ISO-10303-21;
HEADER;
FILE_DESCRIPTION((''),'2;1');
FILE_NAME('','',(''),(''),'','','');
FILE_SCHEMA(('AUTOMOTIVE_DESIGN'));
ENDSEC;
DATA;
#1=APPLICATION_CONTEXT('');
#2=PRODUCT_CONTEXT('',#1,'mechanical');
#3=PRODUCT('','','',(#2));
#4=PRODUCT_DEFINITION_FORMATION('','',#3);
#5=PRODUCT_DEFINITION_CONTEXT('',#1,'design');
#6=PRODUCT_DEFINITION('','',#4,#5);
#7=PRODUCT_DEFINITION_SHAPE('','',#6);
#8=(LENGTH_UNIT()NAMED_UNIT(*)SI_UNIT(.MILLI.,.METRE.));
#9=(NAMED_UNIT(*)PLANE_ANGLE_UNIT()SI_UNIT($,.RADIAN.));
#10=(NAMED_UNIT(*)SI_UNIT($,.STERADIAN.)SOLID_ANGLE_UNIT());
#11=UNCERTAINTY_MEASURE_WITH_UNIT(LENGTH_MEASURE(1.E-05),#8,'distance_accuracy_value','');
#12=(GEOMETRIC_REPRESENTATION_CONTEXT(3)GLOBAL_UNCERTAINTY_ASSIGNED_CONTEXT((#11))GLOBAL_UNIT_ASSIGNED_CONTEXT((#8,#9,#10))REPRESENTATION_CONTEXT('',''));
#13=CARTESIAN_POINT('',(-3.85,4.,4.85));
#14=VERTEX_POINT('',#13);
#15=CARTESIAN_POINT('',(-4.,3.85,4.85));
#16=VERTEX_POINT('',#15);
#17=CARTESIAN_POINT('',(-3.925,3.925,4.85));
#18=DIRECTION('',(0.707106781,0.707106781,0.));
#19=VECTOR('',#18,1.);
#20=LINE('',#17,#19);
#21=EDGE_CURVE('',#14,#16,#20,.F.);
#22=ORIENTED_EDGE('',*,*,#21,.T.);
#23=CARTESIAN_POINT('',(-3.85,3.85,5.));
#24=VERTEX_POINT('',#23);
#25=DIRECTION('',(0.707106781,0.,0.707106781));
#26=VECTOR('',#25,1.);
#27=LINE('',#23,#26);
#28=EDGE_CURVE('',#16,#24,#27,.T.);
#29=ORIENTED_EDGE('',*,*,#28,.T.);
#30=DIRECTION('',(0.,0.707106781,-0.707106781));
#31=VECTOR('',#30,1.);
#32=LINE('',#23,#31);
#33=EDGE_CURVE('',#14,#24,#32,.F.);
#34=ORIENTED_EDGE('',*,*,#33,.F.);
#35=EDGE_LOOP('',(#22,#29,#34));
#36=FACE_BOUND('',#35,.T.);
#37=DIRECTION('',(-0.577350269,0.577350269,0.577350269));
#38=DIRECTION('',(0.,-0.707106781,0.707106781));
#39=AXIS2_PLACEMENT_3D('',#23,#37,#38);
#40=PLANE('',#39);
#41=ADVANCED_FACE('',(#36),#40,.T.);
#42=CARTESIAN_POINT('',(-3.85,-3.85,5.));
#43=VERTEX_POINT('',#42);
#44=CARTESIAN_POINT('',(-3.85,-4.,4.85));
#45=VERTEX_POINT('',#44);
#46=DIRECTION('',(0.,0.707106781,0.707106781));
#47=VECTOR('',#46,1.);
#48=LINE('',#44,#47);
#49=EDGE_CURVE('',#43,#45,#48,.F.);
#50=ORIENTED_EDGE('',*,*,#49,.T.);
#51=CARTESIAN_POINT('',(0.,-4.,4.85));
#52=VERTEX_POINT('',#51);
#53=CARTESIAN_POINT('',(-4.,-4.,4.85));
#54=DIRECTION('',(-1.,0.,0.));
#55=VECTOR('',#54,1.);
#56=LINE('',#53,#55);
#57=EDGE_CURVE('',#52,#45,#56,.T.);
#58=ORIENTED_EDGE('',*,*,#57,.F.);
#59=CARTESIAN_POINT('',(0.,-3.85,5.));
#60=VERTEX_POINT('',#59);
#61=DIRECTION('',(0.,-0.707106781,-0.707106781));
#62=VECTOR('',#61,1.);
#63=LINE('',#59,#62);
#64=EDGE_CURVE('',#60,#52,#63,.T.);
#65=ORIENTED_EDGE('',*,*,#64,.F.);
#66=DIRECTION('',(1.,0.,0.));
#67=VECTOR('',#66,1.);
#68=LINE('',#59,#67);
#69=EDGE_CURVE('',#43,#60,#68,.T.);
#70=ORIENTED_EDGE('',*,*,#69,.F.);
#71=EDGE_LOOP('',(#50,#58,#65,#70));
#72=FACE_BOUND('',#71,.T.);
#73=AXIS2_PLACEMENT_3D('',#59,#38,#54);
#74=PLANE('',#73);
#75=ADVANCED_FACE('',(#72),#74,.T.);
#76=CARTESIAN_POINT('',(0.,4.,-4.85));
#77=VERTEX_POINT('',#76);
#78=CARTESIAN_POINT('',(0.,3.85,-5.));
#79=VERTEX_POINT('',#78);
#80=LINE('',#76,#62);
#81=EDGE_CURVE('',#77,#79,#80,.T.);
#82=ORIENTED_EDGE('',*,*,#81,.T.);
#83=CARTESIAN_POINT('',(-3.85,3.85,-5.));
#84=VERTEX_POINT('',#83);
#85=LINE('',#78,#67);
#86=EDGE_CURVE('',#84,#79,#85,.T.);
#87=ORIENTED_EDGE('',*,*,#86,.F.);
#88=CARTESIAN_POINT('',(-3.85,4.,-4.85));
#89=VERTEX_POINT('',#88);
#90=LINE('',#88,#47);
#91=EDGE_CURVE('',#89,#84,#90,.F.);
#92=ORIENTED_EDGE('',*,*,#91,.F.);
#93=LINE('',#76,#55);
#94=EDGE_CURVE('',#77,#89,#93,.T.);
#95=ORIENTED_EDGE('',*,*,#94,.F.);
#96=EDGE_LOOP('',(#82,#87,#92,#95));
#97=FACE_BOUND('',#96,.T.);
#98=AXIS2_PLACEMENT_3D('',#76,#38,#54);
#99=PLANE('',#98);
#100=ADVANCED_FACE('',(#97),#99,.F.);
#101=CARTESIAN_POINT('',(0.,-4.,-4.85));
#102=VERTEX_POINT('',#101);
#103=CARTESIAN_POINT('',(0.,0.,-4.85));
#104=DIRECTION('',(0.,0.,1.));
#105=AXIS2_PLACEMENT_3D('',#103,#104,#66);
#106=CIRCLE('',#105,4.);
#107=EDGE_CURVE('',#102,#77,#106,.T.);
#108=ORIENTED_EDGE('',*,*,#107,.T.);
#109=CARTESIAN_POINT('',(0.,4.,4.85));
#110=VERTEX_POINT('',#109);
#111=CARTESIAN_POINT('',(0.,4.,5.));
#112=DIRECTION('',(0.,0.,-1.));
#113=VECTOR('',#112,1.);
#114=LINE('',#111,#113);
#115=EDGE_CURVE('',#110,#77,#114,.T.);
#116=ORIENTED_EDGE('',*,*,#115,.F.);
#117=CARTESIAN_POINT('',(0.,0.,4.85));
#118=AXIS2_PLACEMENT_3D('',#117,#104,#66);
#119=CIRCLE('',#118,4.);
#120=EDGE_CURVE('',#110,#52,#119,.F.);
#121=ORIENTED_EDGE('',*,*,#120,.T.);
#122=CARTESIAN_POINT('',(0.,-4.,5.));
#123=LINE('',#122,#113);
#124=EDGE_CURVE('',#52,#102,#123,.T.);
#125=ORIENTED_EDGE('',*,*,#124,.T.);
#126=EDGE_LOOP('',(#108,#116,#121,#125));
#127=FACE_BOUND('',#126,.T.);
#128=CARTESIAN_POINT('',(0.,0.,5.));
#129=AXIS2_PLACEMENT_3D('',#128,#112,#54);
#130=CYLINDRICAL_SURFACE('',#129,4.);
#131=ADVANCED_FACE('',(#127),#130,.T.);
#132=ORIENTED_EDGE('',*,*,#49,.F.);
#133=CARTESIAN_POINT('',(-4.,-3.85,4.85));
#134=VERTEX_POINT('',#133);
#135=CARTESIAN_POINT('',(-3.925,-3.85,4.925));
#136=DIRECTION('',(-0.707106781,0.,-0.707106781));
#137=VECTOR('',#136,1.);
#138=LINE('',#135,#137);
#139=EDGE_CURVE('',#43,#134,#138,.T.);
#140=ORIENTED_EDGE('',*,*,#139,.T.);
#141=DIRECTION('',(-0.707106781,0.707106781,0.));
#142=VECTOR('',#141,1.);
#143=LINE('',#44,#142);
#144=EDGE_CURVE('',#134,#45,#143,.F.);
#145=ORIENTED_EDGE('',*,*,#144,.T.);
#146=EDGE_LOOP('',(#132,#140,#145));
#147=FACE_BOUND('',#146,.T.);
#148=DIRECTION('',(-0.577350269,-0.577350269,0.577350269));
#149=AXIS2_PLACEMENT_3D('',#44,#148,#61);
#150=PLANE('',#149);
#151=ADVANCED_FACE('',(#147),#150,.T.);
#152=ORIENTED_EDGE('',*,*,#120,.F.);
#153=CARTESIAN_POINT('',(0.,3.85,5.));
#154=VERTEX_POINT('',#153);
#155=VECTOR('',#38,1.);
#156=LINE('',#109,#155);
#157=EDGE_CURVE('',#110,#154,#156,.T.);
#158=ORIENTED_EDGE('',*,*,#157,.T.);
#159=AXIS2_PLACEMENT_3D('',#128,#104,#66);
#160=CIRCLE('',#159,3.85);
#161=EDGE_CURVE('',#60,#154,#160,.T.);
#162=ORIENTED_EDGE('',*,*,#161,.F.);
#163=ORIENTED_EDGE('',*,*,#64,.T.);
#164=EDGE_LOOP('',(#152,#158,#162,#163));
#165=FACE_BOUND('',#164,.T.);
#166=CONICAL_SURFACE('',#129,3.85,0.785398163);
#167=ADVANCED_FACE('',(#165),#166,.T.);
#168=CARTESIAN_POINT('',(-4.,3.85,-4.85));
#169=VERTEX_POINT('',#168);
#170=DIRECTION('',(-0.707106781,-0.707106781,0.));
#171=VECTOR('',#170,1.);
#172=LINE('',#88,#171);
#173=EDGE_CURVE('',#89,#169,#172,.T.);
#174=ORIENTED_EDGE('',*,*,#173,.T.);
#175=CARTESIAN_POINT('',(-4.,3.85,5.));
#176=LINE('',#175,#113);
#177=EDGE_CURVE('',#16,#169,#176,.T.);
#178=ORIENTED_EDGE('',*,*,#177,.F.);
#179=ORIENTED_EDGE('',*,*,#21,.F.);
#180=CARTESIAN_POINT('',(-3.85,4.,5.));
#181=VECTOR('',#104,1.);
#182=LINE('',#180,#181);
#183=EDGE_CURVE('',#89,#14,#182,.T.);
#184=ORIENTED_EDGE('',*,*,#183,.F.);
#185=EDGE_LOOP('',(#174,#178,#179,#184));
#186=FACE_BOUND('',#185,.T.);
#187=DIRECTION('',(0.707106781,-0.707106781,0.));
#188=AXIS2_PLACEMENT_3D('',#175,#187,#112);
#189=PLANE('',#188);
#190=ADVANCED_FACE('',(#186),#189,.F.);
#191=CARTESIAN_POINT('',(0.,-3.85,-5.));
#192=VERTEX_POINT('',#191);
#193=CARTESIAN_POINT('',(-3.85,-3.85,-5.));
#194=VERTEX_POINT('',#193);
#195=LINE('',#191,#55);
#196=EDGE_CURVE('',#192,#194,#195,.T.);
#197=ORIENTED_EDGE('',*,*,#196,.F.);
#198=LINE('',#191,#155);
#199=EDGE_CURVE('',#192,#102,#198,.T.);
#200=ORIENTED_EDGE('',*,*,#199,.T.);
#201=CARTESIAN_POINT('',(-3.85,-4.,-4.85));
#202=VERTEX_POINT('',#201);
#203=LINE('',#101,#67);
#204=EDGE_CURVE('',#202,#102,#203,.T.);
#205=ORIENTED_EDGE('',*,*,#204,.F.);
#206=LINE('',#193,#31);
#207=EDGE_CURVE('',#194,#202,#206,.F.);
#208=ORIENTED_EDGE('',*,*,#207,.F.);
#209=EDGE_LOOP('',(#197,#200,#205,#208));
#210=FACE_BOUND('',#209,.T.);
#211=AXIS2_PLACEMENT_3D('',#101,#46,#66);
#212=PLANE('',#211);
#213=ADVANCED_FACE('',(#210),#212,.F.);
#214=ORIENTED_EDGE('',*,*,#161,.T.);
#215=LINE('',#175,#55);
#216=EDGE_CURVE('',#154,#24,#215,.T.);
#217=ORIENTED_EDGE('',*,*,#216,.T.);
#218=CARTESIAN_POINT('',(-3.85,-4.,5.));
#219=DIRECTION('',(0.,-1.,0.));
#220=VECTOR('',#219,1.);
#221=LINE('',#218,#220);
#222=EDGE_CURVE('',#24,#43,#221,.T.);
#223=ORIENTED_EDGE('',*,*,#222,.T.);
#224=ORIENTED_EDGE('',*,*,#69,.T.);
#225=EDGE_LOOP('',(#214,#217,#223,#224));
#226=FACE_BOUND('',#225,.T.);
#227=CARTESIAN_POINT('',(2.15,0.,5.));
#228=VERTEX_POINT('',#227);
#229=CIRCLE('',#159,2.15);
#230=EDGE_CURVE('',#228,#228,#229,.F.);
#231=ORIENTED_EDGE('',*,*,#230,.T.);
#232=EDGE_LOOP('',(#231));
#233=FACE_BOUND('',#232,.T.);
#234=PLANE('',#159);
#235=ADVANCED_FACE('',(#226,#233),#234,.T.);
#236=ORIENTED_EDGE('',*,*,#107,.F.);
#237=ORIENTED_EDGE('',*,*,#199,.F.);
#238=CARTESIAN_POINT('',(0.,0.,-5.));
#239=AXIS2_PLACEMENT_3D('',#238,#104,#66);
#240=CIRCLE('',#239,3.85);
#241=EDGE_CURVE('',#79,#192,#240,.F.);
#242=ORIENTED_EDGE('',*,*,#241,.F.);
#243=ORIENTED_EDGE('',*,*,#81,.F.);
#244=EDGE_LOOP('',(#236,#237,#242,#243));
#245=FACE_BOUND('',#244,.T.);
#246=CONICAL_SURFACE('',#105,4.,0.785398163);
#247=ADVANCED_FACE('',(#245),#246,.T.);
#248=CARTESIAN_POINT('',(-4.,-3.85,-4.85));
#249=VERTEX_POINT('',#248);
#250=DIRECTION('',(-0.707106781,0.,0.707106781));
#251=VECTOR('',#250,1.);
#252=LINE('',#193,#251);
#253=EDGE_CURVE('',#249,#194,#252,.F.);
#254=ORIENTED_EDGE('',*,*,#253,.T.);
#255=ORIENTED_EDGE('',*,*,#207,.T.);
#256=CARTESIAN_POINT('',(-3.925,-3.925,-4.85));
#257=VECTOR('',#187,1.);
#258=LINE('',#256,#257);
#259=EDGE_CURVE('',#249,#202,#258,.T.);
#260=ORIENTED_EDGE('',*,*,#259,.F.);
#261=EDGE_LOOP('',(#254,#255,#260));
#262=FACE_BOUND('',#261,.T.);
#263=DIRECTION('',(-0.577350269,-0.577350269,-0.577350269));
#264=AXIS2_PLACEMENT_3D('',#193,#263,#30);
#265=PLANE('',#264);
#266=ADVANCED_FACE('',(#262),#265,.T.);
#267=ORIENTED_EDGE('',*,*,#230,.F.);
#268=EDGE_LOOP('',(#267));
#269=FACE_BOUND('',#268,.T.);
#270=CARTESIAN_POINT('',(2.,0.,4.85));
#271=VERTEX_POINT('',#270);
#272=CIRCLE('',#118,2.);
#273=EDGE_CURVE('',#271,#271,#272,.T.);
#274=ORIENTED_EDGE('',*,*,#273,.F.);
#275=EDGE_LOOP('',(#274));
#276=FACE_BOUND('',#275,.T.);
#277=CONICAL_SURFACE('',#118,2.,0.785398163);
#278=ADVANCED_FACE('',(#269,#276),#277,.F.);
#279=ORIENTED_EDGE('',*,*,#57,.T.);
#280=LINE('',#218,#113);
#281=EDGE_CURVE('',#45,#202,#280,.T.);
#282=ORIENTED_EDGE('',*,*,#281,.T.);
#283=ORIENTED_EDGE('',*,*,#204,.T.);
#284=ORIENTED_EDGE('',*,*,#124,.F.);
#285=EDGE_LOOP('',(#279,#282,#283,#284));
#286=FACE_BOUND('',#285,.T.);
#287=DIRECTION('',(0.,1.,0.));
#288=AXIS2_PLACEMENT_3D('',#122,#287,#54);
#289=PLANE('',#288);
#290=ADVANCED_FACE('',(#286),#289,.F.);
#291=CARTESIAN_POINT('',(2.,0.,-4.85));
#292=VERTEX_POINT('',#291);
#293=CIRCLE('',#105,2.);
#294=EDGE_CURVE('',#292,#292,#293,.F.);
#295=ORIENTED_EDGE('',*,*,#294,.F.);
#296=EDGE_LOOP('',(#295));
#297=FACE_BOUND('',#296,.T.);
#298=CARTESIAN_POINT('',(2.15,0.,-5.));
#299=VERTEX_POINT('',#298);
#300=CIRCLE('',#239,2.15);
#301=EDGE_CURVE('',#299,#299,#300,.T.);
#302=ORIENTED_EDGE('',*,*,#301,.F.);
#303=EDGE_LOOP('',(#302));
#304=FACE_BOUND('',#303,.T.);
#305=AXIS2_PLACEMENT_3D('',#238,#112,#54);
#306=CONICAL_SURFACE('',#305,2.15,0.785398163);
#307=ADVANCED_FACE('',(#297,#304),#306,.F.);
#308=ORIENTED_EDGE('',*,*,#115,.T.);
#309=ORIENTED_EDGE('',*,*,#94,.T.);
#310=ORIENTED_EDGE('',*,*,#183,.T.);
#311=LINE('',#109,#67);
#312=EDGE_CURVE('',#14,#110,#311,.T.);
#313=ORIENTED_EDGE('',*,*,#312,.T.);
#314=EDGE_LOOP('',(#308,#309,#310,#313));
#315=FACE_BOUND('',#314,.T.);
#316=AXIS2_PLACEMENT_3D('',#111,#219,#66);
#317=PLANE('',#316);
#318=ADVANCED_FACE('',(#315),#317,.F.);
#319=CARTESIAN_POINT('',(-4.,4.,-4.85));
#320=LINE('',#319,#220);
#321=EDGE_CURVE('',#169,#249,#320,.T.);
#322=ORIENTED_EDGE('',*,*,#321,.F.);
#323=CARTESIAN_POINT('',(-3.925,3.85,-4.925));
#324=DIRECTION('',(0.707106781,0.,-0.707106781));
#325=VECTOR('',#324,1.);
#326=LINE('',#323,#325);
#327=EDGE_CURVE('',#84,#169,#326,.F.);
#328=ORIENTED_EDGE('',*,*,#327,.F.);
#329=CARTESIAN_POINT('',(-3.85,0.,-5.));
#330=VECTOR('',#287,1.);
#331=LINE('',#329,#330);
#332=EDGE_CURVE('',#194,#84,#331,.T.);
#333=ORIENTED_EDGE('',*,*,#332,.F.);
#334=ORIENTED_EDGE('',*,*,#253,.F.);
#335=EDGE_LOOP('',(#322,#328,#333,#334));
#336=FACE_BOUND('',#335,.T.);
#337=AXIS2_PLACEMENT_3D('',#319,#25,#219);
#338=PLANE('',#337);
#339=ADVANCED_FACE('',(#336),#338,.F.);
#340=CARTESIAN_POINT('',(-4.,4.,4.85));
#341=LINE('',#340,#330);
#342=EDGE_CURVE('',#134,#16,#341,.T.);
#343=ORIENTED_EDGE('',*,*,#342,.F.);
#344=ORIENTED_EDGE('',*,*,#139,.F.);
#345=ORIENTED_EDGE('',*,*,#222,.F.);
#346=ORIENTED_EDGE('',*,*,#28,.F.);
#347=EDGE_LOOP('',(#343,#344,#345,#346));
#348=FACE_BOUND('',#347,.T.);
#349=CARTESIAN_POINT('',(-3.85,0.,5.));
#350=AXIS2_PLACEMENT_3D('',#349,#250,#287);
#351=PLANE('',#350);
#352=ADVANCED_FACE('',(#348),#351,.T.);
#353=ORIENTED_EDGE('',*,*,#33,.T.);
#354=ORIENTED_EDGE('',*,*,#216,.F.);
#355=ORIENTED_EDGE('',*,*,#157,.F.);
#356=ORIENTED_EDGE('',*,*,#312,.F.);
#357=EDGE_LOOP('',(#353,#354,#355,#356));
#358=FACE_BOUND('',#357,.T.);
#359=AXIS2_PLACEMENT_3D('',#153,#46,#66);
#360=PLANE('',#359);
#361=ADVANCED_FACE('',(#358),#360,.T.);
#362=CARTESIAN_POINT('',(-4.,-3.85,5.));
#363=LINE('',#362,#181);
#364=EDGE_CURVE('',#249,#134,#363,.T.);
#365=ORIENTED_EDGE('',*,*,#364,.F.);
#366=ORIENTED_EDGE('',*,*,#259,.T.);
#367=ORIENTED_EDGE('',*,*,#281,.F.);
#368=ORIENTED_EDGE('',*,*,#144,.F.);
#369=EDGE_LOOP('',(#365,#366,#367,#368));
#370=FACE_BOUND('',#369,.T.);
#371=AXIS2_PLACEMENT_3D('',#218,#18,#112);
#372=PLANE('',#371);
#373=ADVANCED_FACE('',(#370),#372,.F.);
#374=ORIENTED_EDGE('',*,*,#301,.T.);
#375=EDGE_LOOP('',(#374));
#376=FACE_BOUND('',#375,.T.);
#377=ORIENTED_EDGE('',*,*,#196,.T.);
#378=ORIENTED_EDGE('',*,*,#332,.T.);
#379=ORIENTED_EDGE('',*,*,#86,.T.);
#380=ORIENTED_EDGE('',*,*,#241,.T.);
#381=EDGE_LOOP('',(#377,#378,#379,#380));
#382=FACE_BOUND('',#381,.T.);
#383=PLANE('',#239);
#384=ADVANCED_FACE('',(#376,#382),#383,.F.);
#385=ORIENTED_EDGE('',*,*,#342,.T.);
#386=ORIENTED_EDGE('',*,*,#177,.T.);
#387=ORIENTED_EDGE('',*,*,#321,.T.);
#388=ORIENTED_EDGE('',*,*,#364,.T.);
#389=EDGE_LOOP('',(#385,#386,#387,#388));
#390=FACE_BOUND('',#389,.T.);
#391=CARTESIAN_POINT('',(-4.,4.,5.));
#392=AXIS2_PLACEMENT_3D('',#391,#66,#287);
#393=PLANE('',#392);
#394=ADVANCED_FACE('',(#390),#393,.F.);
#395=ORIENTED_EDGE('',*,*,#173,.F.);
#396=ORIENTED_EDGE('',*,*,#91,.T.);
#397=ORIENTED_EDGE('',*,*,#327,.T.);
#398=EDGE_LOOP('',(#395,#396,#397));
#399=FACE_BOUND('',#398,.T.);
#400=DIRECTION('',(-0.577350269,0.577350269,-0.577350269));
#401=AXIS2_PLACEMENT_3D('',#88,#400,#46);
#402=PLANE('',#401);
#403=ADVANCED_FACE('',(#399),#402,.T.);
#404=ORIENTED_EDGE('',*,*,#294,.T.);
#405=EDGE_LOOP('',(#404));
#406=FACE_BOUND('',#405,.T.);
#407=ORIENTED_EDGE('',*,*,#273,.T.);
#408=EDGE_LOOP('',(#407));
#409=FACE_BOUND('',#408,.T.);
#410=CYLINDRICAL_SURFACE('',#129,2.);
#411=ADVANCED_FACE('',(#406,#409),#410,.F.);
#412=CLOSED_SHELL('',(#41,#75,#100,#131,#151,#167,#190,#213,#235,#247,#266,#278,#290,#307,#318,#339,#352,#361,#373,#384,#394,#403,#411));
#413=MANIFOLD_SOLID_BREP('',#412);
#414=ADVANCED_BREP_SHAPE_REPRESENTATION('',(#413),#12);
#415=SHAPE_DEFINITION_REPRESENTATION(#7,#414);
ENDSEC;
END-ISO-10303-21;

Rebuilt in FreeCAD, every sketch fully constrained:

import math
import FreeCAD as App
import Part
import Sketcher

V = App.Vector

doc = App.newDocument("Part")
body = doc.addObject("PartDesign::Body", "Body")

# Sketch on XY plane
sketch1 = body.newObject("Sketcher::SketchObject", "Sketch")
sketch1.AttachmentSupport = (doc.getObject("XY_Plane"), [""])
sketch1.MapMode = "FlatFace"
sketch1.addGeometry([
    Part.LineSegment(V(0, 4, 0), V(-4, 4, 0)),  # 0
    Part.LineSegment(V(-4, 4, 0), V(-4, -4, 0)),  # 1
    Part.LineSegment(V(-4, -4, 0), V(0, -4, 0)),  # 2
    Part.ArcOfCircle(Part.Circle(V(0, 0, 0), V(0, 0, 1), 4), math.radians(-90), math.radians(90)),  # 3
    Part.Circle(V(0, 0, 0), V(0, 0, 1), 2),  # 4
], False)
sketch1.addConstraint([
    Sketcher.Constraint("Coincident", 0, 2, 1, 1),
    Sketcher.Constraint("Coincident", 1, 2, 2, 1),
    Sketcher.Constraint("Tangent", 2, 2, 3, 1),
    Sketcher.Constraint("Tangent", 3, 2, 0, 1),
    Sketcher.Constraint("Horizontal", 0),
    Sketcher.Constraint("Vertical", 1),
    Sketcher.Constraint("Horizontal", 2),
    Sketcher.Constraint("Coincident", 3, 3, -1, 1),
    Sketcher.Constraint("Coincident", 4, 3, -1, 1),
    Sketcher.Constraint("Diameter", 4, 4.0),
    Sketcher.Constraint("Radius", 3, 4.0),
    Sketcher.Constraint("DistanceX", 0, 2, 0, 1, 4.0),
])
pad1 = body.newObject("PartDesign::Pad", "Pad")
pad1.Profile = sketch1
pad1.Length = 10
pad1.Midplane = True
doc.recompute()

chamfer = body.newObject("PartDesign::Chamfer", "Chamfer")
chamfer.Base = (pad1, ["Edge1"])
chamfer.UseAllEdges = True
chamfer.Size = 0.15

doc.recompute()
